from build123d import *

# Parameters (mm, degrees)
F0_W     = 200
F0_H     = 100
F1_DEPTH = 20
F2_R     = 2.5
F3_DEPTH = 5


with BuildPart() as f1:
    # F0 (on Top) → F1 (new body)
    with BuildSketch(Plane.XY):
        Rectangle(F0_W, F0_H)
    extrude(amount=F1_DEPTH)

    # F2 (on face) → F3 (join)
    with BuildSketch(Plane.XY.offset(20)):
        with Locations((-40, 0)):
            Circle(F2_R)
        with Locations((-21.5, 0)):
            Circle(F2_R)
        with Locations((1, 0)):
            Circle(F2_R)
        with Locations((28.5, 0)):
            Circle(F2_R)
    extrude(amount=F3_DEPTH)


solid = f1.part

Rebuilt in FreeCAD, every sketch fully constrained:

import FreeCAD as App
import Part
import Sketcher
Q = App.Units.Quantity


def add_polygon(sketch, points):
    """Adds a closed chain of lines whose ends are joined by coincident constraints."""
    first, n = sketch.GeometryCount, len(points)
    for a, b in zip(points, points[1:] + points[:1]):
        sketch.addGeometry(Part.LineSegment(App.Vector(*a, 0), App.Vector(*b, 0)), False)
    for i in range(n):
        sketch.addConstraint(Sketcher.Constraint("Coincident", first + i, 2, first + (i + 1) % n, 1))

doc = App.newDocument("Part")
body = doc.addObject("PartDesign::Body", "Body")

sketch1 = doc.addObject("Sketcher::SketchObject", "Sketch")
body.addObject(sketch1)
sketch1.AttachmentSupport = (doc.XY_Plane, [""])
sketch1.MapMode = "FlatFace"
add_polygon(sketch1, [(-100, 50), (-100, -50), (100, -50), (100, 50)])
sketch1.addConstraint(Sketcher.Constraint("Vertical", 0))
sketch1.addConstraint(Sketcher.Constraint("Horizontal", 1))
sketch1.addConstraint(Sketcher.Constraint("Vertical", 2))
sketch1.addConstraint(Sketcher.Constraint("Horizontal", 3))
sketch1.addConstraint(Sketcher.Constraint("Symmetric", 0, 2, 2, 2, -1, 1))
sketch1.addConstraint(Sketcher.Constraint("DistanceX", 1, 1, 1, 2, Q("200 mm")))
sketch1.addConstraint(Sketcher.Constraint("DistanceY", 0, 2, 0, 1, Q("100 mm")))
pad1 = doc.addObject("PartDesign::Pad", "Pad")
body.addObject(pad1)
pad1.Profile = sketch1
pad1.Length = 20

sketch2 = doc.addObject("Sketcher::SketchObject", "Sketch001")
body.addObject(sketch2)
sketch2.AttachmentSupport = (doc.XY_Plane, [""])
sketch2.MapMode = "FlatFace"
sketch2.AttachmentOffset = App.Placement(App.Vector(0, 0, 20), App.Rotation())
sketch2.addGeometry(Part.Circle(App.Vector(-40, 0, 0), App.Vector(0, 0, 1), 2.5), False)
sketch2.addGeometry(Part.Circle(App.Vector(-21.5, 0, 0), App.Vector(0, 0, 1), 2.5), False)
sketch2.addGeometry(Part.Circle(App.Vector(1, 0, 0), App.Vector(0, 0, 1), 2.5), False)
sketch2.addGeometry(Part.Circle(App.Vector(28.5, 0, 0), App.Vector(0, 0, 1), 2.5), False)
sketch2.addConstraint(Sketcher.Constraint("Equal", 0, 1))
sketch2.addConstraint(Sketcher.Constraint("Equal", 1, 2))
sketch2.addConstraint(Sketcher.Constraint("Equal", 2, 3))
sketch2.addConstraint(Sketcher.Constraint("PointOnObject", 0, 3, -1))
sketch2.addConstraint(Sketcher.Constraint("PointOnObject", 1, 3, -1))
sketch2.addConstraint(Sketcher.Constraint("PointOnObject", 2, 3, -1))
sketch2.addConstraint(Sketcher.Constraint("PointOnObject", 3, 3, -1))
sketch2.addConstraint(Sketcher.Constraint("Diameter", 0, Q("5 mm")))
sketch2.addConstraint(Sketcher.Constraint("DistanceX", 0, 3, -1, 1, Q("40 mm")))
sketch2.addConstraint(Sketcher.Constraint("DistanceX", -1, 1, 2, 3, Q("1 mm")))
sketch2.addConstraint(Sketcher.Constraint("DistanceX", 1, 3, 3, 3, Q("50 mm")))
sketch2.addConstraint(Sketcher.Constraint("DistanceX", 1, 3, -1, 1, Q("21.5 mm")))
pad2 = doc.addObject("PartDesign::Pad", "Pad001")
body.addObject(pad2)
pad2.Profile = sketch2
pad2.Length = 5

doc.recompute()
